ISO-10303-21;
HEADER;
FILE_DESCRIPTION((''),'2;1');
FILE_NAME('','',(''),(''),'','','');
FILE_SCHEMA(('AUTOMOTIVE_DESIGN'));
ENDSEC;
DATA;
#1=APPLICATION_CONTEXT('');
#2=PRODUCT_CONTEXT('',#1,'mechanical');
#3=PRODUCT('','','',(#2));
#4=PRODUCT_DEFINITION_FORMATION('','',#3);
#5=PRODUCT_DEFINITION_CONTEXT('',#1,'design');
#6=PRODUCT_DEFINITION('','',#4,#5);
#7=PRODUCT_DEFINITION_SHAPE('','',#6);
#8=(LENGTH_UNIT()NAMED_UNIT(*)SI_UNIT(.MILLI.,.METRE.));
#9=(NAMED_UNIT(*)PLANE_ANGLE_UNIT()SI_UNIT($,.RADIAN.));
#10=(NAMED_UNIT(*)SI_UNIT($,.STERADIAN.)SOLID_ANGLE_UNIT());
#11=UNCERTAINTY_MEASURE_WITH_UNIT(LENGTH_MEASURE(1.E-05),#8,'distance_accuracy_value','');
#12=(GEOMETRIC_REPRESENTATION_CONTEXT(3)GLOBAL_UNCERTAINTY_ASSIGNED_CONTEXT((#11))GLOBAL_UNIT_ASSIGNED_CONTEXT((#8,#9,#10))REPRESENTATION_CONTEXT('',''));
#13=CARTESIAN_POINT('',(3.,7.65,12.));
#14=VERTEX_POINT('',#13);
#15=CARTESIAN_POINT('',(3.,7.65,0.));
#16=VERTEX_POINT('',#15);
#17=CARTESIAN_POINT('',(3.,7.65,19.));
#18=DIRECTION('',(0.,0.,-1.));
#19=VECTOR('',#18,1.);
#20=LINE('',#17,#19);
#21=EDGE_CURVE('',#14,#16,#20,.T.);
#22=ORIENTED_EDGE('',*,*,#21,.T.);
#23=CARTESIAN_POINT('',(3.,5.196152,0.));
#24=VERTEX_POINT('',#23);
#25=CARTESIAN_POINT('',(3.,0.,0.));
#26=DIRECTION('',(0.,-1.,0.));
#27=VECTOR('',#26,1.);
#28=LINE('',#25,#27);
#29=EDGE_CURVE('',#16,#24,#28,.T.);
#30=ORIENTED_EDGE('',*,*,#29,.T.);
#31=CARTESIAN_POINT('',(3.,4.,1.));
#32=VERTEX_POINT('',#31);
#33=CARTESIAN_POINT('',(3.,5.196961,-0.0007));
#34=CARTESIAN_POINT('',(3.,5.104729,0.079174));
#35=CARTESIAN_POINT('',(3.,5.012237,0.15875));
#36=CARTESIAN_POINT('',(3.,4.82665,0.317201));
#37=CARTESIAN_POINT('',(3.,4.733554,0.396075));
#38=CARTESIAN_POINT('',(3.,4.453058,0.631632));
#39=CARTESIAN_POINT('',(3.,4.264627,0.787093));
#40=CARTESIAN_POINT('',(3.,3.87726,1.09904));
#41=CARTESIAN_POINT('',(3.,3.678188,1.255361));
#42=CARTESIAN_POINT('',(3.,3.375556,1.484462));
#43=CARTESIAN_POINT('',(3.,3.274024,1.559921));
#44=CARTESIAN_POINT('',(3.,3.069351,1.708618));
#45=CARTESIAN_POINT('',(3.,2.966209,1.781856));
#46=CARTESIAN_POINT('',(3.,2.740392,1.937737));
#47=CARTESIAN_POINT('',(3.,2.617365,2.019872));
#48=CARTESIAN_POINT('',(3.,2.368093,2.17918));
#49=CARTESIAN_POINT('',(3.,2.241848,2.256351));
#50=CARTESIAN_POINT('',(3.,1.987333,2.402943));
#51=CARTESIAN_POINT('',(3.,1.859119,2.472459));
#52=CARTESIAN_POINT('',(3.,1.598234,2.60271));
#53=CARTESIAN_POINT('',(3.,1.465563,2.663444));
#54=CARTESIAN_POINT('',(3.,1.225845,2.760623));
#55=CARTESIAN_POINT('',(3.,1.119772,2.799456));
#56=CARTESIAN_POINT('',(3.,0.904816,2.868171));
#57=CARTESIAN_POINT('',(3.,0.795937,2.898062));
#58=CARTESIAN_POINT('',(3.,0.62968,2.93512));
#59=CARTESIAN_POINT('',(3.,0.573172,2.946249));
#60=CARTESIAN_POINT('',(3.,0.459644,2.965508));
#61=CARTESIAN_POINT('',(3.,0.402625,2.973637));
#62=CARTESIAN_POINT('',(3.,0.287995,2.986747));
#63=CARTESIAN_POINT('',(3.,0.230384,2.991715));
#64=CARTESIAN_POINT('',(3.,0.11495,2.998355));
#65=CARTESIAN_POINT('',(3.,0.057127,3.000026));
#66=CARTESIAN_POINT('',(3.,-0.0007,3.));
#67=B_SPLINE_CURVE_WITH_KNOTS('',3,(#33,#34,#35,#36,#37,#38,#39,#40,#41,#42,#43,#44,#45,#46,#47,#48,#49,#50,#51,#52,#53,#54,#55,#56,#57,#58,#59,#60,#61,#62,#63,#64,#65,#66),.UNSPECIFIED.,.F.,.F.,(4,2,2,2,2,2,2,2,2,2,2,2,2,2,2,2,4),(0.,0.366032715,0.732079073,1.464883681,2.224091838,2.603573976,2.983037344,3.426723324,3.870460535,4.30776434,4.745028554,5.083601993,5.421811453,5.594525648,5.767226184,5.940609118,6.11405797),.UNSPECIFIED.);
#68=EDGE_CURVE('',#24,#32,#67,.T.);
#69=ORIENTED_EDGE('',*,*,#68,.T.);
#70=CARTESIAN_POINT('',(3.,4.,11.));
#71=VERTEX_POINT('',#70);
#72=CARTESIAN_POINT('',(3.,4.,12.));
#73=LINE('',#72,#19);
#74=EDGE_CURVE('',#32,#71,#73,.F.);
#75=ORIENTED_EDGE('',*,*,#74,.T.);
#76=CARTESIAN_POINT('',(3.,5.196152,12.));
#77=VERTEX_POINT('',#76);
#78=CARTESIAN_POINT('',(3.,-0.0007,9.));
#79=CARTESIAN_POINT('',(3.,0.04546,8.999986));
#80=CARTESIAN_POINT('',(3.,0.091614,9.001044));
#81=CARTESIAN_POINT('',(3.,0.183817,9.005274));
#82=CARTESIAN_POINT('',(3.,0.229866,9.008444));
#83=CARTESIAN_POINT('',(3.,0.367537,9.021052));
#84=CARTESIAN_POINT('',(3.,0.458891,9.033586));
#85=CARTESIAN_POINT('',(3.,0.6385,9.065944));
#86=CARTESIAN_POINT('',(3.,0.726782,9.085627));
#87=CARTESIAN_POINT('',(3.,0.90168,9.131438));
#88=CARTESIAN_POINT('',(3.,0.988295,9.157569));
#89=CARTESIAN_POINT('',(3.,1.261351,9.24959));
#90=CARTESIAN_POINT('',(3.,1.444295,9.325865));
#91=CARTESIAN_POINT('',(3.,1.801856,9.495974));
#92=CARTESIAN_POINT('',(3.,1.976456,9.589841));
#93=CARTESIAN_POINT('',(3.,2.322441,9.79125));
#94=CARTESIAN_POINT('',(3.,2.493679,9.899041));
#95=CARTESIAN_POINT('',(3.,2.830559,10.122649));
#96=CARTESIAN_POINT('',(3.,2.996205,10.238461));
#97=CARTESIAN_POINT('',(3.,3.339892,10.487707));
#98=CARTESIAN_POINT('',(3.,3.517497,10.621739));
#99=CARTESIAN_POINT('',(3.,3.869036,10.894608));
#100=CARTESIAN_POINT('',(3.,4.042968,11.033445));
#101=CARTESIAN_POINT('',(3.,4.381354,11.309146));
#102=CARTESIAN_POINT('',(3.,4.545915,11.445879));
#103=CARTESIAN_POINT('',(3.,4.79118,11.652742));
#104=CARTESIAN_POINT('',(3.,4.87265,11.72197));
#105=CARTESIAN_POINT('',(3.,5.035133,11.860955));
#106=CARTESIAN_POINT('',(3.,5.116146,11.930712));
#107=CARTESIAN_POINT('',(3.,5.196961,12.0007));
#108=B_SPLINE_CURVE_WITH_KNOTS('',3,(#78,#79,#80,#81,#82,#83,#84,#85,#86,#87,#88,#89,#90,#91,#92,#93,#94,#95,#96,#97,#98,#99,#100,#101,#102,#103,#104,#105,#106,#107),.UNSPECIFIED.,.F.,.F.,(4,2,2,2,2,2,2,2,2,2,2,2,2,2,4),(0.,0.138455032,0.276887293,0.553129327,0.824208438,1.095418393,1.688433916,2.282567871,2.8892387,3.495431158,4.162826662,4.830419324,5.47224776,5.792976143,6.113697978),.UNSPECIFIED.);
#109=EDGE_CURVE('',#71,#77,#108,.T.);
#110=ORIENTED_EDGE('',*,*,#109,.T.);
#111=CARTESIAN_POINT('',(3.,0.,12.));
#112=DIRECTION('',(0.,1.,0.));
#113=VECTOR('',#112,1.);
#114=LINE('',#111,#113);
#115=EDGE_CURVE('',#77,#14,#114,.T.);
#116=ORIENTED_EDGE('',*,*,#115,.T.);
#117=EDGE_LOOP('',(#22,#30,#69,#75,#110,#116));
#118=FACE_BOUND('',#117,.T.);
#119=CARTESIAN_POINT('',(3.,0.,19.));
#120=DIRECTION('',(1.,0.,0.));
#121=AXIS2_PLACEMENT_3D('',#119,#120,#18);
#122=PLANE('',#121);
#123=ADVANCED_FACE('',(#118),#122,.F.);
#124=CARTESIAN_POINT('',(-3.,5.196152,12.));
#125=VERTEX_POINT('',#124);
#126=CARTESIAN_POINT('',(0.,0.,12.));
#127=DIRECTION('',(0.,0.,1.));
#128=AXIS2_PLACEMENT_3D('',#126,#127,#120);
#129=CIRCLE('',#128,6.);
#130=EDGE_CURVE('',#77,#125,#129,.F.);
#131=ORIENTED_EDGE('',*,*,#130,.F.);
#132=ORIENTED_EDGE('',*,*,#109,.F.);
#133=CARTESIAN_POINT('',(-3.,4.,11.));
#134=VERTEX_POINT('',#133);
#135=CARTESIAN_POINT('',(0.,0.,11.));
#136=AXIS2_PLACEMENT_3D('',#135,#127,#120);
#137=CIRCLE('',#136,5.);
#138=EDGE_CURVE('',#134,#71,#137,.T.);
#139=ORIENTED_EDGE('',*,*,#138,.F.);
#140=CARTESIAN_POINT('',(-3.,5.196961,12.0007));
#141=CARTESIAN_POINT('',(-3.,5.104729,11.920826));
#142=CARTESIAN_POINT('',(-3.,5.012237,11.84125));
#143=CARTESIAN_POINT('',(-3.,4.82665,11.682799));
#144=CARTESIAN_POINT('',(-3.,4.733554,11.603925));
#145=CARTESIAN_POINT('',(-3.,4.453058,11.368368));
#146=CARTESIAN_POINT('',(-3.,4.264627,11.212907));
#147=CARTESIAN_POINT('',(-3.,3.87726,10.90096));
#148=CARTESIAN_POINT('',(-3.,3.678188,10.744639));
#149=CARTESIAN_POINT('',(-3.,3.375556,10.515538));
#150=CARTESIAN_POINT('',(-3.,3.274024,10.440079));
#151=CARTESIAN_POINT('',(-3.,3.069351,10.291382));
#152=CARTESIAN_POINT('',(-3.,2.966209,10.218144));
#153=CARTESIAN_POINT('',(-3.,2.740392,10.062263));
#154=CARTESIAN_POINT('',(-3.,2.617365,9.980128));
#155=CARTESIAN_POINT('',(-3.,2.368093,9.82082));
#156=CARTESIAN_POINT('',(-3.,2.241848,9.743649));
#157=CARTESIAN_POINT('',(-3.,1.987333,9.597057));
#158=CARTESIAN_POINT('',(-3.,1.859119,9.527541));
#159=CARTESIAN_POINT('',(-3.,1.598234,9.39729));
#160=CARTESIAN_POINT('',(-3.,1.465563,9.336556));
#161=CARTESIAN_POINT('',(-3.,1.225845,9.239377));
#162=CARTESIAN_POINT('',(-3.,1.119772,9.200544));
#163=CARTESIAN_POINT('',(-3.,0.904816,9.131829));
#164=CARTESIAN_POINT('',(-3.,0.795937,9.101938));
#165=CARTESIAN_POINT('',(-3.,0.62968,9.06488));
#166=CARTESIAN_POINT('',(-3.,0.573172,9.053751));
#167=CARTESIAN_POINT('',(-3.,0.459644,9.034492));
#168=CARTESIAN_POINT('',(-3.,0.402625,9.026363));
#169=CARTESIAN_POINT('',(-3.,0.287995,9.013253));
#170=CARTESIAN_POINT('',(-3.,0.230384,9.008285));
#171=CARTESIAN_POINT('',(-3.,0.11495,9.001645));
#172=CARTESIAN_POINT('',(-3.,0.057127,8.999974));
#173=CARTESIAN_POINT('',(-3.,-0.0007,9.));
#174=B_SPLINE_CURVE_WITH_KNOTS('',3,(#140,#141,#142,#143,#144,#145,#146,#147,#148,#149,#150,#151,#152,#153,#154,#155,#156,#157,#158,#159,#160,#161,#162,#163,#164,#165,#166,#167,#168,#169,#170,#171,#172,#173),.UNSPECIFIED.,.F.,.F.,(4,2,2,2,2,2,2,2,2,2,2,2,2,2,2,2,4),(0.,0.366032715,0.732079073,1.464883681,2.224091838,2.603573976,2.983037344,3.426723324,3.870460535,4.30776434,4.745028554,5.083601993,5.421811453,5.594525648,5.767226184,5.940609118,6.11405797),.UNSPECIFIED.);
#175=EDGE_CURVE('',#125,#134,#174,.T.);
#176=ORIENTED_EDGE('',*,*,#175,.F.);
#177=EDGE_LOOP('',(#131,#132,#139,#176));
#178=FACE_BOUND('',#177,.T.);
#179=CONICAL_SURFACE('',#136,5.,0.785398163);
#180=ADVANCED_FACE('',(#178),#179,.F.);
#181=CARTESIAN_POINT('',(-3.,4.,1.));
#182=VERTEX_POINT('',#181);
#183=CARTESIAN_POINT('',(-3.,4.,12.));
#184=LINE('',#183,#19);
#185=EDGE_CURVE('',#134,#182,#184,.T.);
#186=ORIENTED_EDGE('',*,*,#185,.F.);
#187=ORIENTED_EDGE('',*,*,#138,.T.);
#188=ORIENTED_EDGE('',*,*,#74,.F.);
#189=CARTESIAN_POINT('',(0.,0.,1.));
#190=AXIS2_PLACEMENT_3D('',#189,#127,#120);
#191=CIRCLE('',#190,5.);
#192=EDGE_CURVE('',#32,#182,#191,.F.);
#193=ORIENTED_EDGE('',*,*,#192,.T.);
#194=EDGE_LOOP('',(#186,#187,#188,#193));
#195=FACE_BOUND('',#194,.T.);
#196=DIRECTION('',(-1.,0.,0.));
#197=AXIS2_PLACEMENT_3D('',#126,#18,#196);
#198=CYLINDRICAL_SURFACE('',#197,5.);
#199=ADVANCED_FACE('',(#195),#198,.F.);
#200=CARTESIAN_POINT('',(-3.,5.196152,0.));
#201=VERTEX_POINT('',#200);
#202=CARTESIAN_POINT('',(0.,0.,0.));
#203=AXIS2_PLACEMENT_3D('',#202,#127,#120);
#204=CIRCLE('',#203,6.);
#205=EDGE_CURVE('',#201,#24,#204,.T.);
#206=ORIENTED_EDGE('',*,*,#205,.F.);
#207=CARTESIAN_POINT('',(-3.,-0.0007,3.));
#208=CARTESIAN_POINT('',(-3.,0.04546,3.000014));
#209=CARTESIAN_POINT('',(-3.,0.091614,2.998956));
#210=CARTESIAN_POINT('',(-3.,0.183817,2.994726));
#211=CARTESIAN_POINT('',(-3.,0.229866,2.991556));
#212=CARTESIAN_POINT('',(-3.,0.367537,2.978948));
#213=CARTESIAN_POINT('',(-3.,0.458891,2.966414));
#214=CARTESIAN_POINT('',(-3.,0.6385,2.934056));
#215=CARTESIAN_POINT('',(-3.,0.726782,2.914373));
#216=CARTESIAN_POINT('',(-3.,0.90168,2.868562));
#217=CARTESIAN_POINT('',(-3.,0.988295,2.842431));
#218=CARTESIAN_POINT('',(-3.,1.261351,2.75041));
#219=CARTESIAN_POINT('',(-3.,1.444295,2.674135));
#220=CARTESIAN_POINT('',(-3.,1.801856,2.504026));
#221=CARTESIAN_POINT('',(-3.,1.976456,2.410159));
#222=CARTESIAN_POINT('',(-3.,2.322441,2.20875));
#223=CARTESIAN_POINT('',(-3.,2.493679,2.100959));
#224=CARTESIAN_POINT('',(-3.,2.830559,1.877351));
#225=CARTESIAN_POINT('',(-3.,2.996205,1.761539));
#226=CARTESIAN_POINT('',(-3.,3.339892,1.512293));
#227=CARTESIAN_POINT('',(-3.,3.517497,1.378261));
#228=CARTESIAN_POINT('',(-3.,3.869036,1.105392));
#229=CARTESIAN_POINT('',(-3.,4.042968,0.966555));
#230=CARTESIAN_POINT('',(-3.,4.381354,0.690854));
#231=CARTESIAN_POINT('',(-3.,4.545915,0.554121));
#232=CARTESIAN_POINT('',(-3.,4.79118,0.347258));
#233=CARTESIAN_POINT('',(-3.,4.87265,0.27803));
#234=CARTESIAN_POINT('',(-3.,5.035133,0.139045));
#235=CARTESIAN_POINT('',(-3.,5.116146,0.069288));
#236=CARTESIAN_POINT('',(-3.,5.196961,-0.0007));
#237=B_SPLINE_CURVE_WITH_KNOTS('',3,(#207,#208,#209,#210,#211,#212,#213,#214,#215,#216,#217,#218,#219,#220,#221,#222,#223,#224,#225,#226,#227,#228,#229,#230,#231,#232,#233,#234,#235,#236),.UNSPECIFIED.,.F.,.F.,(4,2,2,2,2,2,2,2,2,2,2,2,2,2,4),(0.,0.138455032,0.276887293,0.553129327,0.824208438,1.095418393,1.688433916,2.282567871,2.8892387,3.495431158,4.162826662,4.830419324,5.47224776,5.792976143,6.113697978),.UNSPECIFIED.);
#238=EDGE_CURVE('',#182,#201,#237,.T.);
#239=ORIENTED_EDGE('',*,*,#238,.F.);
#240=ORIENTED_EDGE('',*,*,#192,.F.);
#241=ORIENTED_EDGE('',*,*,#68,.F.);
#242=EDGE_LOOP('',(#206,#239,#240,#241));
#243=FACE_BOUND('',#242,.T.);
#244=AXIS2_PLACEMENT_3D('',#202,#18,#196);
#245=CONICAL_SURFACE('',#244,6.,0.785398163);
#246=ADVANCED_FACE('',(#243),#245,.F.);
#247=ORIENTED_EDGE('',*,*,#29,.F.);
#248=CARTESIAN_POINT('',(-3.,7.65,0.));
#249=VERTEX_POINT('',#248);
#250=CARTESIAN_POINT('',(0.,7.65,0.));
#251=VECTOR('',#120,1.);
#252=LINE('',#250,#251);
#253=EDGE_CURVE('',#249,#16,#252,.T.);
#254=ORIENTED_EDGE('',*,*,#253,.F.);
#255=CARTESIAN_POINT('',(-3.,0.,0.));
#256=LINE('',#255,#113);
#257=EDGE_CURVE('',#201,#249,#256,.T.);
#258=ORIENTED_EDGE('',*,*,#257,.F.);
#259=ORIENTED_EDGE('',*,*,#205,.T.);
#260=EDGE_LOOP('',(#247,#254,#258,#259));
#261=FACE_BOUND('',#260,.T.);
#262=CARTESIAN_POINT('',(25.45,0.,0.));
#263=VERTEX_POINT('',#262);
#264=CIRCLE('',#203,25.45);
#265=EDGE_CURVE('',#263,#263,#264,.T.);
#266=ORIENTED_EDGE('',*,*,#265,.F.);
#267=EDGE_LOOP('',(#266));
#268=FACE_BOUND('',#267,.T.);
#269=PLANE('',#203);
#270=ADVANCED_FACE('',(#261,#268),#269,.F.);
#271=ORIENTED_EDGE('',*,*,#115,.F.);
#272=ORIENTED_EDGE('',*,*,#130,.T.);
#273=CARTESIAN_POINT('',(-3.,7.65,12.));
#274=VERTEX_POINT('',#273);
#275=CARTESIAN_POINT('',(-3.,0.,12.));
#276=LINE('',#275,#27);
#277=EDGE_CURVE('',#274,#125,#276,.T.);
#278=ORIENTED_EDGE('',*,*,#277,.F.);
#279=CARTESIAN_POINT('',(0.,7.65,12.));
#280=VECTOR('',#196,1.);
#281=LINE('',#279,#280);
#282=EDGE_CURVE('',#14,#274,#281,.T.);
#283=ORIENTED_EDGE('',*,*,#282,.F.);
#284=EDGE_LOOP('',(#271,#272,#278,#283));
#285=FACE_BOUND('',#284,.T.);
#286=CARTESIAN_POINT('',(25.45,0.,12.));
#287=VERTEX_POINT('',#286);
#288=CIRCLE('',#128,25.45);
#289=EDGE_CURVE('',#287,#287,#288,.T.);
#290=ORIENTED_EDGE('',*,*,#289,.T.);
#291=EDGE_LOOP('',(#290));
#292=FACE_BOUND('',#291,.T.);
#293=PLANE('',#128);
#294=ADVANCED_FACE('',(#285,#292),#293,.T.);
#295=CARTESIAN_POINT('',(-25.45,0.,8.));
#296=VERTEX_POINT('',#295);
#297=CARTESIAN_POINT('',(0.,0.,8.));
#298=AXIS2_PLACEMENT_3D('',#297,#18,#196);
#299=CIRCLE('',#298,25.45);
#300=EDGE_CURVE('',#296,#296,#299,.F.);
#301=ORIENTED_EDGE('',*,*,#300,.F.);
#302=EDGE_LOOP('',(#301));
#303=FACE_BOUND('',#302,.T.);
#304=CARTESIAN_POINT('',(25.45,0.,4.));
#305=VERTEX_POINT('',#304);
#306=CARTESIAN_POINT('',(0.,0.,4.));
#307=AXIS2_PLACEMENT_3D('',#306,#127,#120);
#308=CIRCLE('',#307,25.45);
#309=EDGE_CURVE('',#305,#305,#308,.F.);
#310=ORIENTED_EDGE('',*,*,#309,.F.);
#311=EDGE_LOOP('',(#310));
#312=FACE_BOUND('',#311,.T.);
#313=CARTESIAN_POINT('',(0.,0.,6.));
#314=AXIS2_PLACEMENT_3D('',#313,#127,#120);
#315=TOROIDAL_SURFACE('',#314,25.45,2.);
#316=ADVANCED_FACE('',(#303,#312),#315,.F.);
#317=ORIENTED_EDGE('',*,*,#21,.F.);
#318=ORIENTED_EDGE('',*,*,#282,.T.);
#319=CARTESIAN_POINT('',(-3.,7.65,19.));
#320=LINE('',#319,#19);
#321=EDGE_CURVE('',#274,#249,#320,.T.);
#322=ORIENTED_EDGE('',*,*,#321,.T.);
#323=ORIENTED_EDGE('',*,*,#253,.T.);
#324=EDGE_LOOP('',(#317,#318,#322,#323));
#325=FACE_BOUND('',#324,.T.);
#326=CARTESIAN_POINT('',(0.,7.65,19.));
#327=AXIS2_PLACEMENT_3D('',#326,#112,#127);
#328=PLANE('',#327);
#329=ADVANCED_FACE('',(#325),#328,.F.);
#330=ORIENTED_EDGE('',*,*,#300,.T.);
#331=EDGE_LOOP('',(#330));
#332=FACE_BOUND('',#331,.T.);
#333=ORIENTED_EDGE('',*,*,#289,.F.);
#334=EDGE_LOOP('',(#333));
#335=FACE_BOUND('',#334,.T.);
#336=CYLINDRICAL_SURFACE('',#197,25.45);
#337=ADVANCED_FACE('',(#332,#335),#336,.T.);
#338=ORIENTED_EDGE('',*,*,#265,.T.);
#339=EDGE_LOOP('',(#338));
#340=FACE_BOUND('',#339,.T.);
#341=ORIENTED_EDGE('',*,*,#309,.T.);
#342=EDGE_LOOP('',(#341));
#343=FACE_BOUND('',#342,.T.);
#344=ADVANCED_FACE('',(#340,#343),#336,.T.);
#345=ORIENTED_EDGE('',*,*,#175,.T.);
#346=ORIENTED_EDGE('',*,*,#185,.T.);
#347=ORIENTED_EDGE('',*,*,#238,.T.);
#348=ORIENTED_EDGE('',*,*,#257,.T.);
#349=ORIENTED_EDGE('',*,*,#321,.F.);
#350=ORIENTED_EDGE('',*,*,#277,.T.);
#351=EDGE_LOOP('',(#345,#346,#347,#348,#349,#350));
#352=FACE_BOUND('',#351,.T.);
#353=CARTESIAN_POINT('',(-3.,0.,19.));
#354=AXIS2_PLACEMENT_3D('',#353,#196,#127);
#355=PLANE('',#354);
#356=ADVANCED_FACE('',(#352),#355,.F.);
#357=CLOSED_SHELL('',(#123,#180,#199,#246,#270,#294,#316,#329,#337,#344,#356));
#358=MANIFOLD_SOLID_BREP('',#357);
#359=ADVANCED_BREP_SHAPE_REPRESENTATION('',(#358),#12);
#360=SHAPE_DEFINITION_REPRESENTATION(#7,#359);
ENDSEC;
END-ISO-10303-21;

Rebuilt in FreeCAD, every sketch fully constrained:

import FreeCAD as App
import Part
import Sketcher

V = App.Vector
Q = App.Units.Quantity


def edges_at(feature, points):
    """Names of the edges that pass closest to the given points."""
    edges = feature.Shape.Edges
    near = lambda p: min(range(len(edges)), key=lambda i: edges[i].distToShape(Part.Vertex(*p))[0])
    return sorted({f"Edge{near(p) + 1}" for p in points})

doc = App.newDocument("Part")
body = doc.addObject("PartDesign::Body", "Body")

# Sketch on XY plane
sketch1 = body.newObject("Sketcher::SketchObject", "Sketch")
sketch1.AttachmentSupport = (doc.getObject("XY_Plane"), [""])
sketch1.MapMode = "FlatFace"
sketch1.addGeometry(Part.Circle(V(0, 0, 0), V(0, 0, 1), 25), False)
sketch1.addGeometry(Part.Circle(V(0, 0, 0), V(0, 0, 1), 5), False)
sketch1.addConstraint(Sketcher.Constraint("Coincident", 0, 3, -1, 1))
sketch1.addConstraint(Sketcher.Constraint("Coincident", 1, 3, -1, 1))
sketch1.addConstraint(Sketcher.Constraint("Diameter", 1, Q("10 mm")))
sketch1.addConstraint(Sketcher.Constraint("Diameter", 0, Q("50.9 mm")))
pad1 = body.newObject("PartDesign::Pad", "Pad")
pad1.Profile = sketch1
pad1.Length = 12
doc.recompute()

chamfer = body.newObject("PartDesign::Chamfer", "Chamfer")
chamfer.Base = (pad1, edges_at(pad1, [(-5, 0, 0), (-5, 0, 12)]))
chamfer.Size = 1

# Sketch on XY plane
sketch2 = body.newObject("Sketcher::SketchObject", "Sketch001")
sketch2.AttachmentSupport = (doc.getObject("XY_Plane"), [""])
sketch2.MapMode = "FlatFace"
sketch2.addGeometry(Part.LineSegment(V(3, 8, 0), V(3, 0, 0)), False)
sketch2.addGeometry(Part.LineSegment(V(3, 0, 0), V(-3, 0, 0)), False)
sketch2.addGeometry(Part.LineSegment(V(-3, 0, 0), V(-3, 8, 0)), False)
sketch2.addGeometry(Part.LineSegment(V(-3, 8, 0), V(3, 8, 0)), False)
sketch2.addConstraint(Sketcher.Constraint("Coincident", 0, 2, 1, 1))
sketch2.addConstraint(Sketcher.Constraint("Coincident", 1, 2, 2, 1))
sketch2.addConstraint(Sketcher.Constraint("Coincident", 2, 2, 3, 1))
sketch2.addConstraint(Sketcher.Constraint("Coincident", 3, 2, 0, 1))
sketch2.addConstraint(Sketcher.Constraint("Vertical", 0))
sketch2.addConstraint(Sketcher.Constraint("Horizontal", 1))
sketch2.addConstraint(Sketcher.Constraint("Vertical", 2))
sketch2.addConstraint(Sketcher.Constraint("Horizontal", 3))
sketch2.addConstraint(Sketcher.Constraint("Symmetric", 0, 2, 1, 2, -1, 1))
sketch2.addConstraint(Sketcher.Constraint("DistanceX", 1, 2, 1, 1, Q("6 mm")))
sketch2.addConstraint(Sketcher.Constraint("DistanceY", 0, 2, 0, 1, Q("7.65 mm")))
pocket1 = body.newObject("PartDesign::Pocket", "Pocket")
pocket1.Profile = sketch2
pocket1.Length = 19
pocket1.Reversed = True

# Sketch on XZ plane
sketch3 = body.newObject("Sketcher::SketchObject", "Sketch002")
sketch3.AttachmentSupport = (doc.getObject("XZ_Plane"), [""])
sketch3.MapMode = "FlatFace"
sketch3.addGeometry(Part.Circle(V(25.4, 6, 0), V(0, 0, 1), 2), False)
sketch3.addConstraint(Sketcher.Constraint("Diameter", 0, Q("4 mm")))
sketch3.addConstraint(Sketcher.Constraint("DistanceY", -1, 1, 0, 3, Q("6 mm")))
sketch3.addConstraint(Sketcher.Constraint("DistanceX", -1, 1, 0, 3, Q("25.45 mm")))
groove = body.newObject("PartDesign::Groove", "Groove")
groove.Profile = sketch3
groove.ReferenceAxis = (sketch3, ["V_Axis"])
groove.Angle = 360

doc.recompute()
